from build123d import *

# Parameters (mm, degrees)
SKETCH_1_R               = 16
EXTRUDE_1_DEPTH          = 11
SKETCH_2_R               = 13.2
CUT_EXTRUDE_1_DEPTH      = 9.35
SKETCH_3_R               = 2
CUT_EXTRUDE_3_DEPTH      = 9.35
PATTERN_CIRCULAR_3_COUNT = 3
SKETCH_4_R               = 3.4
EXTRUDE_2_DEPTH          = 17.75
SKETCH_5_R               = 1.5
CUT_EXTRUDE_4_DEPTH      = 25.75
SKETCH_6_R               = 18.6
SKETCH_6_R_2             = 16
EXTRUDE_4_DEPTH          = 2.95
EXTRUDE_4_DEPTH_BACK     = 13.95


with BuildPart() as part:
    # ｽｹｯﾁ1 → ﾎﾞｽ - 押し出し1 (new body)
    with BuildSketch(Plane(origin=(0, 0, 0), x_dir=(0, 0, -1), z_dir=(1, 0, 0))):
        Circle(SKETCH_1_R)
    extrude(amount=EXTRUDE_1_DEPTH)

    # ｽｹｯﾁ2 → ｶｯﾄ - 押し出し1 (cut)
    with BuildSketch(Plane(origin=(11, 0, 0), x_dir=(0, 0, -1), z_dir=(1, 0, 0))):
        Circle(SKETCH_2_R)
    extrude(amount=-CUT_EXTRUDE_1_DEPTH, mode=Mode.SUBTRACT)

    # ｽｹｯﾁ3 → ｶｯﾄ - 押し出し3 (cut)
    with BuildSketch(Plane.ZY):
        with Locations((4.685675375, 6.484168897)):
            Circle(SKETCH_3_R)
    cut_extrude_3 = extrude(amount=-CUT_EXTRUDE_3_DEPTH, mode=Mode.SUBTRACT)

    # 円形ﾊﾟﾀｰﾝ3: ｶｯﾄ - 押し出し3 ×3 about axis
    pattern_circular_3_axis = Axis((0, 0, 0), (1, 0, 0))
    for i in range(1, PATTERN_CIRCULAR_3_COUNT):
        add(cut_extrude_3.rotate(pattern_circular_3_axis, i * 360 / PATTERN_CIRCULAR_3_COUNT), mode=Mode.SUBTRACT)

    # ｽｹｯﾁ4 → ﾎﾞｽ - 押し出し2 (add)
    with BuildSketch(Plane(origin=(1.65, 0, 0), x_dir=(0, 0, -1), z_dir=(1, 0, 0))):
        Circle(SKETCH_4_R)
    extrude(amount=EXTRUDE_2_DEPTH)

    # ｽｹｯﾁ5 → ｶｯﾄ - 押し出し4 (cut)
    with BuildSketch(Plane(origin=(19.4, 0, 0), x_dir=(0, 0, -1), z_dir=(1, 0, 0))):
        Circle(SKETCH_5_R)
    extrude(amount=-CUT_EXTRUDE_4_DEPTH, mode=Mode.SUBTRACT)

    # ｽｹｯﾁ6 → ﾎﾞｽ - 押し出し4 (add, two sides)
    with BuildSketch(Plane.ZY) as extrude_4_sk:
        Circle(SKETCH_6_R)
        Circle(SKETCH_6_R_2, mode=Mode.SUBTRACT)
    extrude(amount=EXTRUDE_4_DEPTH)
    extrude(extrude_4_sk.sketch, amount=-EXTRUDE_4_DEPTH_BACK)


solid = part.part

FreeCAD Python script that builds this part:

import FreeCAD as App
import Part
import Sketcher
from FreeCAD import Vector
Q = App.Units.Quantity

doc = App.newDocument("Part")
body = doc.addObject("PartDesign::Body", "Body")

sketch1 = body.newObject("Sketcher::SketchObject", "Sketch")
sketch1.AttachmentSupport = (doc.getObject("YZ_Plane"), [""])
sketch1.MapMode = "FlatFace"
sketch1.addGeometry(Part.Circle(Vector(0, 0, 0), Vector(0, 0, 1), 16), False)
sketch1.addConstraint(Sketcher.Constraint("Coincident", 0, 3, -1, 1))
sketch1.addConstraint(Sketcher.Constraint("Diameter", 0, Q("32 mm")))
pad1 = body.newObject("PartDesign::Pad", "Pad")
pad1.Profile = sketch1
pad1.Length = 11

sketch2 = body.newObject("Sketcher::SketchObject", "Sketch001")
sketch2.AttachmentSupport = (doc.getObject("YZ_Plane"), [""])
sketch2.MapMode = "FlatFace"
sketch2.AttachmentOffset = App.Placement(Vector(0, 0, 11), App.Rotation())
sketch2.addGeometry(Part.Circle(Vector(0, 0, 0), Vector(0, 0, 1), 13.2), False)
sketch2.addConstraint(Sketcher.Constraint("Coincident", 0, 3, -1, 1))
sketch2.addConstraint(Sketcher.Constraint("Diameter", 0, Q("26.4 mm")))
pocket1 = body.newObject("PartDesign::Pocket", "Pocket")
pocket1.Profile = sketch2
pocket1.Length = 9.35

sketch3 = body.newObject("Sketcher::SketchObject", "Sketch002")
sketch3.AttachmentSupport = (doc.getObject("YZ_Plane"), [""])
sketch3.MapMode = "FlatFace"
sketch3.addGeometry(Part.Circle(Vector(6.484169, 4.685675, 0), Vector(0, 0, 1), 2), False)
sketch3.addConstraint(Sketcher.Constraint("Diameter", 0, Q("4 mm")))
sketch3.addConstraint(Sketcher.Constraint("DistanceX", -1, 1, 0, 3, Q("6.484169 mm")))
sketch3.addConstraint(Sketcher.Constraint("DistanceY", -1, 1, 0, 3, Q("4.685675 mm")))
pocket2 = body.newObject("PartDesign::Pocket", "Pocket001")
pocket2.Profile = sketch3
pocket2.Length = 9.35
pocket2.Reversed = True
doc.recompute()

polarpattern = body.newObject("PartDesign::PolarPattern", "PolarPattern")
polarpattern.Originals = [pocket2]
polarpattern.Axis = (doc.getObject("X_Axis"), [""])
polarpattern.Angle = 360
polarpattern.Occurrences = 3
body.Tip = polarpattern

sketch4 = body.newObject("Sketcher::SketchObject", "Sketch003")
sketch4.AttachmentSupport = (doc.getObject("YZ_Plane"), [""])
sketch4.MapMode = "FlatFace"
sketch4.AttachmentOffset = App.Placement(Vector(0, 0, 1.65), App.Rotation())
sketch4.addGeometry(Part.Circle(Vector(0, 0, 0), Vector(0, 0, 1), 3.4), False)
sketch4.addConstraint(Sketcher.Constraint("Coincident", 0, 3, -1, 1))
sketch4.addConstraint(Sketcher.Constraint("Diameter", 0, Q("6.8 mm")))
pad2 = body.newObject("PartDesign::Pad", "Pad001")
pad2.Profile = sketch4
pad2.Length = 17.75

sketch5 = body.newObject("Sketcher::SketchObject", "Sketch004")
sketch5.AttachmentSupport = (doc.getObject("YZ_Plane"), [""])
sketch5.MapMode = "FlatFace"
sketch5.AttachmentOffset = App.Placement(Vector(0, 0, 19.4), App.Rotation())
sketch5.addGeometry(Part.Circle(Vector(0, 0, 0), Vector(0, 0, 1), 1.5), False)
sketch5.addConstraint(Sketcher.Constraint("Coincident", 0, 3, -1, 1))
sketch5.addConstraint(Sketcher.Constraint("Diameter", 0, Q("3 mm")))
pocket3 = body.newObject("PartDesign::Pocket", "Pocket002")
pocket3.Profile = sketch5
pocket3.Length = 25.75

sketch6 = body.newObject("Sketcher::SketchObject", "Sketch005")
sketch6.AttachmentSupport = (doc.getObject("YZ_Plane"), [""])
sketch6.MapMode = "FlatFace"
sketch6.addGeometry(Part.Circle(Vector(0, 0, 0), Vector(0, 0, 1), 18.6), False)
sketch6.addGeometry(Part.Circle(Vector(0, 0, 0), Vector(0, 0, 1), 16), False)
sketch6.addConstraint(Sketcher.Constraint("Coincident", 0, 3, -1, 1))
sketch6.addConstraint(Sketcher.Constraint("Coincident", 1, 3, -1, 1))
sketch6.addConstraint(Sketcher.Constraint("Diameter", 1, Q("32 mm")))
sketch6.addConstraint(Sketcher.Constraint("Diameter", 0, Q("37.2 mm")))
pad3 = body.newObject("PartDesign::Pad", "Pad002")
pad3.Profile = sketch6
pad3.Type = "TwoLengths"
pad3.Length = 2.95
pad3.Length2 = 13.95
pad3.Reversed = True

doc.recompute()
